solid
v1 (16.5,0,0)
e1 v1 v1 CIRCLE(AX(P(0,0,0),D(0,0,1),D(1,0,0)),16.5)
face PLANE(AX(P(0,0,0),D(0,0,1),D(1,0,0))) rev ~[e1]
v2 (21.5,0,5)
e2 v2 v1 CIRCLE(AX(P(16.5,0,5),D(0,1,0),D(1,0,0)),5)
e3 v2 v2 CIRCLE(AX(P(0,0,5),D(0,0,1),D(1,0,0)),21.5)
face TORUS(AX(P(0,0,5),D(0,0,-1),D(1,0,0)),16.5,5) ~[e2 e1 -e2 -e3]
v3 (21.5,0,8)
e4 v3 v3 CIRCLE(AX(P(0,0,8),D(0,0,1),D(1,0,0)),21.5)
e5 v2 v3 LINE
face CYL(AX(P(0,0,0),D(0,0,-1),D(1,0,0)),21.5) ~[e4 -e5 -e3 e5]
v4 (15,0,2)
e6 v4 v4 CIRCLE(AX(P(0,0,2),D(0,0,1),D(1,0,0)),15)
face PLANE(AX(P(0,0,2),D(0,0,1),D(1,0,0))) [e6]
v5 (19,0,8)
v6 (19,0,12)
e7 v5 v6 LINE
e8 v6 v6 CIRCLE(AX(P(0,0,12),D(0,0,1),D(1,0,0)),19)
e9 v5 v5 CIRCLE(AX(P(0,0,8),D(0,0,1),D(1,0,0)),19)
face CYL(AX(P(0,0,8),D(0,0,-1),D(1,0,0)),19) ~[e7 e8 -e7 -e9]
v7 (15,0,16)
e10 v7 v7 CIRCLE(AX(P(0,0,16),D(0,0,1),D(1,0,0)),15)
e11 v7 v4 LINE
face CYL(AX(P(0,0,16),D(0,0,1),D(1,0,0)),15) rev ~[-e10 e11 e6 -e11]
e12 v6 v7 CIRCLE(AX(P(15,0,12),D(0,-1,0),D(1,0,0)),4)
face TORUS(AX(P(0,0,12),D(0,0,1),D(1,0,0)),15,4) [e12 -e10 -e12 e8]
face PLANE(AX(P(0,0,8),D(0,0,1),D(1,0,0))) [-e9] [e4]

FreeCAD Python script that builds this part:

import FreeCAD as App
import Part
import Sketcher
Q = App.Units.Quantity


def edges_at(feature, points):
    """Names of the edges that pass closest to the given points."""
    edges = feature.Shape.Edges
    near = lambda p: min(range(len(edges)), key=lambda i: edges[i].distToShape(Part.Vertex(*p))[0])
    return sorted({f"Edge{near(p) + 1}" for p in points})

doc = App.newDocument("Part")
body = doc.addObject("PartDesign::Body", "Body")

# Sketch on XY plane
sketch1 = doc.addObject("Sketcher::SketchObject", "Sketch")
body.addObject(sketch1)
sketch1.AttachmentSupport = (doc.XY_Plane, [""])
sketch1.MapMode = "FlatFace"
sketch1.addGeometry(Part.Circle(App.Vector(0, 0, 0), App.Vector(0, 0, 1), 22), False)
sketch1.addConstraint(Sketcher.Constraint("Coincident", 0, 3, -1, 1))
sketch1.addConstraint(Sketcher.Constraint("Diameter", 0, Q("43 mm")))
pad1 = doc.addObject("PartDesign::Pad", "Pad")
body.addObject(pad1)
pad1.Profile = sketch1
pad1.Length = 8

# Sketch on XY plane
sketch2 = doc.addObject("Sketcher::SketchObject", "Sketch001")
body.addObject(sketch2)
sketch2.AttachmentSupport = (doc.XY_Plane, [""])
sketch2.MapMode = "FlatFace"
sketch2.AttachmentOffset = App.Placement(App.Vector(0, 0, 8), App.Rotation())
sketch2.addGeometry(Part.Circle(App.Vector(0, 0, 0), App.Vector(0, 0, 1), 19), False)
sketch2.addConstraint(Sketcher.Constraint("Coincident", 0, 3, -1, 1))
sketch2.addConstraint(Sketcher.Constraint("Diameter", 0, Q("38 mm")))
pad2 = doc.addObject("PartDesign::Pad", "Pad001")
body.addObject(pad2)
pad2.Profile = sketch2
pad2.Length = 8
doc.recompute()

fillet = doc.addObject("PartDesign::Fillet", "Fillet")
body.addObject(fillet)
fillet.Base = (pad2, edges_at(pad2, [(-19, 0, 16)]))
fillet.Radius = 4
doc.recompute()

fillet2 = doc.addObject("PartDesign::Fillet", "Fillet001")
body.addObject(fillet2)
fillet2.Base = (fillet, edges_at(fillet, [(-21.5, 0, 0)]))
fillet2.Radius = 5

# Sketch on XY plane
sketch3 = doc.addObject("Sketcher::SketchObject", "Sketch002")
body.addObject(sketch3)
sketch3.AttachmentSupport = (doc.XY_Plane, [""])
sketch3.MapMode = "FlatFace"
sketch3.AttachmentOffset = App.Placement(App.Vector(0, 0, 16), App.Rotation())
sketch3.addGeometry(Part.Circle(App.Vector(0, 0, 0), App.Vector(0, 0, 1), 15), False)
sketch3.addConstraint(Sketcher.Constraint("Coincident", 0, 3, -1, 1))
sketch3.addConstraint(Sketcher.Constraint("Diameter", 0, Q("30 mm")))
pocket1 = doc.addObject("PartDesign::Pocket", "Pocket")
body.addObject(pocket1)
pocket1.Profile = sketch3
pocket1.Length = 14

doc.recompute()
